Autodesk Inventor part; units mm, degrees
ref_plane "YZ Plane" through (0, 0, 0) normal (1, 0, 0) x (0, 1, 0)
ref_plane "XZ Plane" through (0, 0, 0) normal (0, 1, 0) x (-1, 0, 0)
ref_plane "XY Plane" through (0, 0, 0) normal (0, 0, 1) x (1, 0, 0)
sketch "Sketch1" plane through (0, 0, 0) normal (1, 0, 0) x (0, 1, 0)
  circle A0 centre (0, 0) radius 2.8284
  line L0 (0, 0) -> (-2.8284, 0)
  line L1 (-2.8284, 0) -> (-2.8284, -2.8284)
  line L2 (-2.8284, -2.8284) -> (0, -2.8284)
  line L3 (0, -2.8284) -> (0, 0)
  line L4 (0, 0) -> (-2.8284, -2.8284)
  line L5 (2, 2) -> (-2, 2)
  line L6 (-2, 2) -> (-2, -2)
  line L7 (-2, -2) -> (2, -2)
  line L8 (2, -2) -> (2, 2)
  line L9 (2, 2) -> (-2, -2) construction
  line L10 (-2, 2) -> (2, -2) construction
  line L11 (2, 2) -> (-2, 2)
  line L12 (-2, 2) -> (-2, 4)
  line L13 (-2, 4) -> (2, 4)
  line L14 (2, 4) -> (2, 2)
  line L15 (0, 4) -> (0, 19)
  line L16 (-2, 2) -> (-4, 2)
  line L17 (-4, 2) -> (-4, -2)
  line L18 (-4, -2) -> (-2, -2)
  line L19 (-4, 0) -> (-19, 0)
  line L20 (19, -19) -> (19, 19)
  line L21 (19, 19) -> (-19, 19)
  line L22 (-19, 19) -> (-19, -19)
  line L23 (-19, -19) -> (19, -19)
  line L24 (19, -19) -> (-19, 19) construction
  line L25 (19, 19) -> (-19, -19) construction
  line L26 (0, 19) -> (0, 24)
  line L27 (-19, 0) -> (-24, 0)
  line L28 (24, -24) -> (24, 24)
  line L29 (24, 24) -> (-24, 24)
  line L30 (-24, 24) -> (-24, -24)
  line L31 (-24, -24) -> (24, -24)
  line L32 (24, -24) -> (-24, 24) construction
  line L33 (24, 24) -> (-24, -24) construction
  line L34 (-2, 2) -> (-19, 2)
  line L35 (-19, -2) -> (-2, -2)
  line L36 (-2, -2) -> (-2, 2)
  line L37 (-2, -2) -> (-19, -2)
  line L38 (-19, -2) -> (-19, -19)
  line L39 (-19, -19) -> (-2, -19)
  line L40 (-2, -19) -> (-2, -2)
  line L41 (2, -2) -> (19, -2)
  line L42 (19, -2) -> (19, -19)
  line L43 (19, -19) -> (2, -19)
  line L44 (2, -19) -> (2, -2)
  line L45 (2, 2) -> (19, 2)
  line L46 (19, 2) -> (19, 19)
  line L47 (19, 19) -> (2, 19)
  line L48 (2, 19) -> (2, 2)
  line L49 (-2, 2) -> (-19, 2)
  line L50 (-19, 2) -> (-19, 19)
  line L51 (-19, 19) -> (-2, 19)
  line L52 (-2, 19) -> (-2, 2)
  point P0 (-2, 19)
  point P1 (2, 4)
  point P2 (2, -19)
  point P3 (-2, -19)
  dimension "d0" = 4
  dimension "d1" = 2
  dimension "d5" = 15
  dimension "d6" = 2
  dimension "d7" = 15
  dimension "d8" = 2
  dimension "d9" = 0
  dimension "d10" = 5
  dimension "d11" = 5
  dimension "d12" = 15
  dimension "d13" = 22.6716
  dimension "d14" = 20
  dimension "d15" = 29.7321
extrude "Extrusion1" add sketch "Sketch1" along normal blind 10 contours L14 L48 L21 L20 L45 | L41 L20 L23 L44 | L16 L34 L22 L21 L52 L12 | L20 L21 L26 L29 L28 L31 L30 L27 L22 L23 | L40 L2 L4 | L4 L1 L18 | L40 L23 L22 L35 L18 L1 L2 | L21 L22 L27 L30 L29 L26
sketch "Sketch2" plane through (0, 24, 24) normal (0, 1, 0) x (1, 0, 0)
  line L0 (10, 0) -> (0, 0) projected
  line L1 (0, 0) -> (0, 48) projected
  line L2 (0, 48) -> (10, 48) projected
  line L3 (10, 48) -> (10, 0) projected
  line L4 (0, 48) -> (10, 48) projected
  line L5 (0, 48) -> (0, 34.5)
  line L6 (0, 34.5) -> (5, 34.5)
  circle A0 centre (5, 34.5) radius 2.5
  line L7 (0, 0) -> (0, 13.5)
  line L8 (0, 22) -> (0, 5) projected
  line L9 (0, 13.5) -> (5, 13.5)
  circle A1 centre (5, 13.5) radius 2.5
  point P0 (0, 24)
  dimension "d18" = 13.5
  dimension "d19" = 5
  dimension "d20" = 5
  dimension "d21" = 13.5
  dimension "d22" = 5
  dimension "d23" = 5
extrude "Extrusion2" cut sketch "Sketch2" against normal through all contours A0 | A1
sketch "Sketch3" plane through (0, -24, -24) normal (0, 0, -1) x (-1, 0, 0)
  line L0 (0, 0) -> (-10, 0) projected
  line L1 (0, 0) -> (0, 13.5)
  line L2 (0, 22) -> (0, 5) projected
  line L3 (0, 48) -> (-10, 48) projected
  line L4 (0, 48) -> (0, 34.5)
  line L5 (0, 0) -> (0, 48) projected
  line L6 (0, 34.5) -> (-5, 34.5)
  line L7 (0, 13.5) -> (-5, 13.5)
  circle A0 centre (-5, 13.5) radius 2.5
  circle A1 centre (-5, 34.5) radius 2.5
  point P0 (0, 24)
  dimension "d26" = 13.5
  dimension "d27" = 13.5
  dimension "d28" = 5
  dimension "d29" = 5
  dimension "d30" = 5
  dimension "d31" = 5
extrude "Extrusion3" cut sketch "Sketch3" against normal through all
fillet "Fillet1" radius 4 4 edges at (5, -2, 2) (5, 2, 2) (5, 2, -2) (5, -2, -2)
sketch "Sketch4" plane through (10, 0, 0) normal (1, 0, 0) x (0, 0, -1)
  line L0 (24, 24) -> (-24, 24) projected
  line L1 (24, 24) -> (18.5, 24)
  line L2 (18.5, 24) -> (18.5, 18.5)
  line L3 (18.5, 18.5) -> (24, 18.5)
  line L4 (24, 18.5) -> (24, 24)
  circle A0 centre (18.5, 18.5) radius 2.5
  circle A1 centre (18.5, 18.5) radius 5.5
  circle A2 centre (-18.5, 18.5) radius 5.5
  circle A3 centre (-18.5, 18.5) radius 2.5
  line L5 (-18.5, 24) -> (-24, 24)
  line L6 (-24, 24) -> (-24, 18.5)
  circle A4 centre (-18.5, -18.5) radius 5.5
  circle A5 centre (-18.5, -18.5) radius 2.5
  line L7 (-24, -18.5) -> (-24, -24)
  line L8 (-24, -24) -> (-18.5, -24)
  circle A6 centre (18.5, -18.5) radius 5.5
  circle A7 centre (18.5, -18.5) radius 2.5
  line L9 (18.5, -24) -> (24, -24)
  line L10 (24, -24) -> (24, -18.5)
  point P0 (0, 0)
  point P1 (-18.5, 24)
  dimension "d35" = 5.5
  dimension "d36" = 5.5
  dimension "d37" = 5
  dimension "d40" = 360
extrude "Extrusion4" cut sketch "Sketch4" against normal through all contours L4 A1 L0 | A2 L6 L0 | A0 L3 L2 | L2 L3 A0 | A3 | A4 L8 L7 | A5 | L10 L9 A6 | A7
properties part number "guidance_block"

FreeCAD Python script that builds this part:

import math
import FreeCAD as App
import Part
import Sketcher


def edges_at(feature, points):
    """Names of the edges that pass closest to the given points."""
    edges = feature.Shape.Edges
    near = lambda p: min(range(len(edges)), key=lambda i: edges[i].distToShape(Part.Vertex(*p))[0])
    return sorted({f"Edge{near(p) + 1}" for p in points})


def add_polygon(sketch, points):
    """Adds a closed chain of lines whose ends are joined by coincident constraints."""
    first, n = sketch.GeometryCount, len(points)
    for a, b in zip(points, points[1:] + points[:1]):
        sketch.addGeometry(Part.LineSegment(App.Vector(*a, 0), App.Vector(*b, 0)), False)
    for i in range(n):
        sketch.addConstraint(Sketcher.Constraint("Coincident", first + i, 2, first + (i + 1) % n, 1))

doc = App.newDocument("Part")
params = doc.addObject("Spreadsheet::Sheet", "Params")
for row, (alias, value) in enumerate([
    ("sketch1_width", "4 mm"),
    ("sketch1_width2", "48 mm"),
    ("pad1_length", "10 mm"),
    ("sketch2_diameter", "5 mm"),
    ("sketch3_diameter", "5 mm"),
    ("fillet_radius", "4 mm"),
    ("sketch4_diameter", "5 mm"),
    ("sketch4_radius", "5.5 mm"),
], start=1):
    params.set(f"A{row}", alias)
    params.set(f"B{row}", "=" + value)
    params.setAlias(f"B{row}", alias)

body = doc.addObject("PartDesign::Body", "Body")

sketch1 = body.newObject("Sketcher::SketchObject", "Sketch")
sketch1.AttachmentSupport = (doc.getObject("YZ_Plane"), [""])
sketch1.MapMode = "FlatFace"
add_polygon(sketch1, [(24, 24), (-24, 24), (-24, -24), (24, -24)])
add_polygon(sketch1, [(2, 2), (19, 2), (19, -2), (2, -2), (2, -19), (-2, -19), (-2, -2), (-19, -2), (-19, 2), (-2, 2), (-2, 19), (2, 19)])
sketch1.addConstraint(Sketcher.Constraint("Horizontal", 0))
sketch1.addConstraint(Sketcher.Constraint("Vertical", 1))
sketch1.addConstraint(Sketcher.Constraint("Horizontal", 2))
sketch1.addConstraint(Sketcher.Constraint("Vertical", 3))
sketch1.addConstraint(Sketcher.Constraint("Horizontal", 4))
sketch1.addConstraint(Sketcher.Constraint("Vertical", 5))
sketch1.addConstraint(Sketcher.Constraint("Horizontal", 6))
sketch1.addConstraint(Sketcher.Constraint("Vertical", 7))
sketch1.addConstraint(Sketcher.Constraint("Horizontal", 8))
sketch1.addConstraint(Sketcher.Constraint("Vertical", 9))
sketch1.addConstraint(Sketcher.Constraint("Horizontal", 10))
sketch1.addConstraint(Sketcher.Constraint("Vertical", 11))
sketch1.addConstraint(Sketcher.Constraint("Horizontal", 12))
sketch1.addConstraint(Sketcher.Constraint("Vertical", 13))
sketch1.addConstraint(Sketcher.Constraint("Horizontal", 14))
sketch1.addConstraint(Sketcher.Constraint("Vertical", 15))
sketch1.addConstraint(Sketcher.Constraint("Symmetric", 0, 2, 2, 2, -1, 1))
sketch1.addConstraint(Sketcher.Constraint("Symmetric", 4, 2, 10, 2, -1, 1))
sketch1.addConstraint(Sketcher.Constraint("Symmetric", 6, 2, 12, 2, -1, 1))
sketch1.addConstraint(Sketcher.Constraint("Symmetric", 8, 2, 14, 2, -1, 1))
sketch1.addConstraint(Sketcher.Constraint("Symmetric", 6, 2, 9, 2, -2))
sketch1.addConstraint(Sketcher.Constraint("Equal", 2, 1))
sketch1.addConstraint(Sketcher.Constraint("Equal", 14, 5))
sketch1.addConstraint(Sketcher.Constraint("Equal", 12, 7))
sketch1.addConstraint(Sketcher.Constraint("DistanceX", 8, 2, 8, 1, 4.0))
sketch1.addConstraint(Sketcher.Constraint("DistanceX", 4, 2, 3, 2, 5.0))
sketch1.addConstraint(Sketcher.Constraint("DistanceX", 0, 2, 0, 1, 48.0))
sketch1.setExpression("Constraints[40]", "Params.sketch1_width")
sketch1.setExpression("Constraints[42]", "Params.sketch1_width2")
pad1 = body.newObject("PartDesign::Pad", "Pad")
pad1.Profile = sketch1
pad1.setExpression("Length", "Params.pad1_length")

sketch2 = body.newObject("Sketcher::SketchObject", "Sketch001")
sketch2.AttachmentSupport = (doc.getObject("XZ_Plane"), [""])
sketch2.MapMode = "FlatFace"
sketch2.AttachmentOffset = App.Placement(App.Vector(0, 0, -24), App.Rotation())
sketch2.addGeometry(Part.Circle(App.Vector(5, -10.5, 0), App.Vector(0, 0, 1), 2.5), False)
sketch2.addGeometry(Part.Circle(App.Vector(5, 10.5, 0), App.Vector(0, 0, 1), 2.5), False)
sketch2.addConstraint(Sketcher.Constraint("Equal", 0, 1))
sketch2.addConstraint(Sketcher.Constraint("Symmetric", 0, 3, 1, 3, -1))
sketch2.addConstraint(Sketcher.Constraint("Diameter", 0, 5.0))
sketch2.addConstraint(Sketcher.Constraint("DistanceX", -1, 1, 0, 3, 5.0))
sketch2.addConstraint(Sketcher.Constraint("DistanceY", 0, 3, 1, 3, 21.0))
sketch2.setExpression("Constraints[2]", "Params.sketch2_diameter")
pocket1 = body.newObject("PartDesign::Pocket", "Pocket")
pocket1.Profile = sketch2
pocket1.Type = "ThroughAll"
pocket1.Reversed = True

sketch3 = body.newObject("Sketcher::SketchObject", "Sketch002")
sketch3.AttachmentSupport = (doc.getObject("XY_Plane"), [""])
sketch3.MapMode = "FlatFace"
sketch3.AttachmentOffset = App.Placement(App.Vector(0, 0, -24), App.Rotation())
sketch3.addGeometry(Part.Circle(App.Vector(5, -10.5, 0), App.Vector(0, 0, 1), 2.5), False)
sketch3.addGeometry(Part.Circle(App.Vector(5, 10.5, 0), App.Vector(0, 0, 1), 2.5), False)
sketch3.addConstraint(Sketcher.Constraint("Equal", 0, 1))
sketch3.addConstraint(Sketcher.Constraint("Symmetric", 0, 3, 1, 3, -1))
sketch3.addConstraint(Sketcher.Constraint("Diameter", 0, 5.0))
sketch3.addConstraint(Sketcher.Constraint("DistanceX", -1, 1, 0, 3, 5.0))
sketch3.addConstraint(Sketcher.Constraint("DistanceY", 0, 3, 1, 3, 21.0))
sketch3.setExpression("Constraints[2]", "Params.sketch3_diameter")
pocket2 = body.newObject("PartDesign::Pocket", "Pocket001")
pocket2.Profile = sketch3
pocket2.Type = "ThroughAll"
pocket2.Reversed = True
doc.recompute()

fillet = body.newObject("PartDesign::Fillet", "Fillet")
fillet.Base = (pocket2, edges_at(pocket2, [
    (5, -2, 2),
    (5, 2, 2),
    (5, 2, -2),
    (5, -2, -2),
]))
fillet.setExpression("Radius", "Params.fillet_radius")

sketch4 = body.newObject("Sketcher::SketchObject", "Sketch003")
sketch4.AttachmentSupport = (doc.getObject("YZ_Plane"), [""])
sketch4.MapMode = "FlatFace"
sketch4.AttachmentOffset = App.Placement(App.Vector(0, 0, 10), App.Rotation())
sketch4.addGeometry(Part.LineSegment(App.Vector(18.5, -24, 0), App.Vector(24, -24, 0)), False)
sketch4.addGeometry(Part.LineSegment(App.Vector(24, -24, 0), App.Vector(24, -18.5, 0)), False)
sketch4.addGeometry(Part.ArcOfCircle(Part.Circle(App.Vector(18.5, -18.5, 0), App.Vector(0, 0, 1), 5.5), math.radians(-90), math.radians(0)), False)
sketch4.addGeometry(Part.ArcOfCircle(Part.Circle(App.Vector(18.5, 18.5, 0), App.Vector(0, 0, 1), 5.5), math.radians(0), math.radians(90)), False)
sketch4.addGeometry(Part.LineSegment(App.Vector(24, 18.5, 0), App.Vector(24, 24, 0)), False)
sketch4.addGeometry(Part.LineSegment(App.Vector(24, 24, 0), App.Vector(18.5, 24, 0)), False)
sketch4.addGeometry(Part.Circle(App.Vector(18.5, -18.5, 0), App.Vector(0, 0, 1), 2.5), False)
sketch4.addGeometry(Part.Circle(App.Vector(18.5, 18.5, 0), App.Vector(0, 0, 1), 2.5), False)
sketch4.addGeometry(Part.ArcOfCircle(Part.Circle(App.Vector(-18.5, 18.5, 0), App.Vector(0, 0, 1), 5.5), math.radians(90), math.radians(180)), False)
sketch4.addGeometry(Part.LineSegment(App.Vector(-18.5, 24, 0), App.Vector(-24, 24, 0)), False)
sketch4.addGeometry(Part.LineSegment(App.Vector(-24, 24, 0), App.Vector(-24, 18.5, 0)), False)
sketch4.addGeometry(Part.Circle(App.Vector(-18.5, 18.5, 0), App.Vector(0, 0, 1), 2.5), False)
sketch4.addGeometry(Part.LineSegment(App.Vector(-24, -24, 0), App.Vector(-18.5, -24, 0)), False)
sketch4.addGeometry(Part.ArcOfCircle(Part.Circle(App.Vector(-18.5, -18.5, 0), App.Vector(0, 0, 1), 5.5), math.radians(180), math.radians(270)), False)
sketch4.addGeometry(Part.LineSegment(App.Vector(-24, -18.5, 0), App.Vector(-24, -24, 0)), False)
sketch4.addGeometry(Part.Circle(App.Vector(-18.5, -18.5, 0), App.Vector(0, 0, 1), 2.5), False)
sketch4.addConstraint(Sketcher.Constraint("Coincident", 0, 2, 1, 1))
sketch4.addConstraint(Sketcher.Constraint("Tangent", 1, 2, 2, 2))
sketch4.addConstraint(Sketcher.Constraint("Tangent", 2, 1, 0, 1))
sketch4.addConstraint(Sketcher.Constraint("Tangent", 3, 1, 4, 1))
sketch4.addConstraint(Sketcher.Constraint("Coincident", 4, 2, 5, 1))
sketch4.addConstraint(Sketcher.Constraint("Tangent", 5, 2, 3, 2))
sketch4.addConstraint(Sketcher.Constraint("Tangent", 8, 1, 9, 1))
sketch4.addConstraint(Sketcher.Constraint("Coincident", 9, 2, 10, 1))
sketch4.addConstraint(Sketcher.Constraint("Tangent", 10, 2, 8, 2))
sketch4.addConstraint(Sketcher.Constraint("Tangent", 12, 2, 13, 2))
sketch4.addConstraint(Sketcher.Constraint("Tangent", 13, 1, 14, 1))
sketch4.addConstraint(Sketcher.Constraint("Coincident", 14, 2, 12, 1))
sketch4.addConstraint(Sketcher.Constraint("Horizontal", 0))
sketch4.addConstraint(Sketcher.Constraint("Vertical", 1))
sketch4.addConstraint(Sketcher.Constraint("Vertical", 4))
sketch4.addConstraint(Sketcher.Constraint("Horizontal", 5))
sketch4.addConstraint(Sketcher.Constraint("Horizontal", 9))
sketch4.addConstraint(Sketcher.Constraint("Vertical", 10))
sketch4.addConstraint(Sketcher.Constraint("Horizontal", 12))
sketch4.addConstraint(Sketcher.Constraint("Vertical", 14))
sketch4.addConstraint(Sketcher.Constraint("Coincident", 6, 3, 2, 3))
sketch4.addConstraint(Sketcher.Constraint("Coincident", 7, 3, 3, 3))
sketch4.addConstraint(Sketcher.Constraint("Coincident", 11, 3, 8, 3))
sketch4.addConstraint(Sketcher.Constraint("Coincident", 15, 3, 13, 3))
sketch4.addConstraint(Sketcher.Constraint("Equal", 2, 3))
sketch4.addConstraint(Sketcher.Constraint("Equal", 6, 7))
sketch4.addConstraint(Sketcher.Constraint("Equal", 3, 8))
sketch4.addConstraint(Sketcher.Constraint("Equal", 7, 11))
sketch4.addConstraint(Sketcher.Constraint("Equal", 8, 13))
sketch4.addConstraint(Sketcher.Constraint("Equal", 11, 15))
sketch4.addConstraint(Sketcher.Constraint("Symmetric", 2, 3, 8, 3, -1, 1))
sketch4.addConstraint(Sketcher.Constraint("Symmetric", 3, 3, 13, 3, -1, 1))
sketch4.addConstraint(Sketcher.Constraint("Symmetric", 3, 3, 8, 3, -2))
sketch4.addConstraint(Sketcher.Constraint("Diameter", 6, 5.0))
sketch4.addConstraint(Sketcher.Constraint("Radius", 2, 5.5))
sketch4.addConstraint(Sketcher.Constraint("DistanceX", -1, 1, 0, 2, 24.0))
sketch4.addConstraint(Sketcher.Constraint("DistanceY", 0, 2, -1, 1, 24.0))
sketch4.setExpression("Constraints[33]", "Params.sketch4_diameter")
sketch4.setExpression("Constraints[34]", "Params.sketch4_radius")
pocket3 = body.newObject("PartDesign::Pocket", "Pocket002")
pocket3.Profile = sketch4
pocket3.Type = "ThroughAll"

doc.recompute()
